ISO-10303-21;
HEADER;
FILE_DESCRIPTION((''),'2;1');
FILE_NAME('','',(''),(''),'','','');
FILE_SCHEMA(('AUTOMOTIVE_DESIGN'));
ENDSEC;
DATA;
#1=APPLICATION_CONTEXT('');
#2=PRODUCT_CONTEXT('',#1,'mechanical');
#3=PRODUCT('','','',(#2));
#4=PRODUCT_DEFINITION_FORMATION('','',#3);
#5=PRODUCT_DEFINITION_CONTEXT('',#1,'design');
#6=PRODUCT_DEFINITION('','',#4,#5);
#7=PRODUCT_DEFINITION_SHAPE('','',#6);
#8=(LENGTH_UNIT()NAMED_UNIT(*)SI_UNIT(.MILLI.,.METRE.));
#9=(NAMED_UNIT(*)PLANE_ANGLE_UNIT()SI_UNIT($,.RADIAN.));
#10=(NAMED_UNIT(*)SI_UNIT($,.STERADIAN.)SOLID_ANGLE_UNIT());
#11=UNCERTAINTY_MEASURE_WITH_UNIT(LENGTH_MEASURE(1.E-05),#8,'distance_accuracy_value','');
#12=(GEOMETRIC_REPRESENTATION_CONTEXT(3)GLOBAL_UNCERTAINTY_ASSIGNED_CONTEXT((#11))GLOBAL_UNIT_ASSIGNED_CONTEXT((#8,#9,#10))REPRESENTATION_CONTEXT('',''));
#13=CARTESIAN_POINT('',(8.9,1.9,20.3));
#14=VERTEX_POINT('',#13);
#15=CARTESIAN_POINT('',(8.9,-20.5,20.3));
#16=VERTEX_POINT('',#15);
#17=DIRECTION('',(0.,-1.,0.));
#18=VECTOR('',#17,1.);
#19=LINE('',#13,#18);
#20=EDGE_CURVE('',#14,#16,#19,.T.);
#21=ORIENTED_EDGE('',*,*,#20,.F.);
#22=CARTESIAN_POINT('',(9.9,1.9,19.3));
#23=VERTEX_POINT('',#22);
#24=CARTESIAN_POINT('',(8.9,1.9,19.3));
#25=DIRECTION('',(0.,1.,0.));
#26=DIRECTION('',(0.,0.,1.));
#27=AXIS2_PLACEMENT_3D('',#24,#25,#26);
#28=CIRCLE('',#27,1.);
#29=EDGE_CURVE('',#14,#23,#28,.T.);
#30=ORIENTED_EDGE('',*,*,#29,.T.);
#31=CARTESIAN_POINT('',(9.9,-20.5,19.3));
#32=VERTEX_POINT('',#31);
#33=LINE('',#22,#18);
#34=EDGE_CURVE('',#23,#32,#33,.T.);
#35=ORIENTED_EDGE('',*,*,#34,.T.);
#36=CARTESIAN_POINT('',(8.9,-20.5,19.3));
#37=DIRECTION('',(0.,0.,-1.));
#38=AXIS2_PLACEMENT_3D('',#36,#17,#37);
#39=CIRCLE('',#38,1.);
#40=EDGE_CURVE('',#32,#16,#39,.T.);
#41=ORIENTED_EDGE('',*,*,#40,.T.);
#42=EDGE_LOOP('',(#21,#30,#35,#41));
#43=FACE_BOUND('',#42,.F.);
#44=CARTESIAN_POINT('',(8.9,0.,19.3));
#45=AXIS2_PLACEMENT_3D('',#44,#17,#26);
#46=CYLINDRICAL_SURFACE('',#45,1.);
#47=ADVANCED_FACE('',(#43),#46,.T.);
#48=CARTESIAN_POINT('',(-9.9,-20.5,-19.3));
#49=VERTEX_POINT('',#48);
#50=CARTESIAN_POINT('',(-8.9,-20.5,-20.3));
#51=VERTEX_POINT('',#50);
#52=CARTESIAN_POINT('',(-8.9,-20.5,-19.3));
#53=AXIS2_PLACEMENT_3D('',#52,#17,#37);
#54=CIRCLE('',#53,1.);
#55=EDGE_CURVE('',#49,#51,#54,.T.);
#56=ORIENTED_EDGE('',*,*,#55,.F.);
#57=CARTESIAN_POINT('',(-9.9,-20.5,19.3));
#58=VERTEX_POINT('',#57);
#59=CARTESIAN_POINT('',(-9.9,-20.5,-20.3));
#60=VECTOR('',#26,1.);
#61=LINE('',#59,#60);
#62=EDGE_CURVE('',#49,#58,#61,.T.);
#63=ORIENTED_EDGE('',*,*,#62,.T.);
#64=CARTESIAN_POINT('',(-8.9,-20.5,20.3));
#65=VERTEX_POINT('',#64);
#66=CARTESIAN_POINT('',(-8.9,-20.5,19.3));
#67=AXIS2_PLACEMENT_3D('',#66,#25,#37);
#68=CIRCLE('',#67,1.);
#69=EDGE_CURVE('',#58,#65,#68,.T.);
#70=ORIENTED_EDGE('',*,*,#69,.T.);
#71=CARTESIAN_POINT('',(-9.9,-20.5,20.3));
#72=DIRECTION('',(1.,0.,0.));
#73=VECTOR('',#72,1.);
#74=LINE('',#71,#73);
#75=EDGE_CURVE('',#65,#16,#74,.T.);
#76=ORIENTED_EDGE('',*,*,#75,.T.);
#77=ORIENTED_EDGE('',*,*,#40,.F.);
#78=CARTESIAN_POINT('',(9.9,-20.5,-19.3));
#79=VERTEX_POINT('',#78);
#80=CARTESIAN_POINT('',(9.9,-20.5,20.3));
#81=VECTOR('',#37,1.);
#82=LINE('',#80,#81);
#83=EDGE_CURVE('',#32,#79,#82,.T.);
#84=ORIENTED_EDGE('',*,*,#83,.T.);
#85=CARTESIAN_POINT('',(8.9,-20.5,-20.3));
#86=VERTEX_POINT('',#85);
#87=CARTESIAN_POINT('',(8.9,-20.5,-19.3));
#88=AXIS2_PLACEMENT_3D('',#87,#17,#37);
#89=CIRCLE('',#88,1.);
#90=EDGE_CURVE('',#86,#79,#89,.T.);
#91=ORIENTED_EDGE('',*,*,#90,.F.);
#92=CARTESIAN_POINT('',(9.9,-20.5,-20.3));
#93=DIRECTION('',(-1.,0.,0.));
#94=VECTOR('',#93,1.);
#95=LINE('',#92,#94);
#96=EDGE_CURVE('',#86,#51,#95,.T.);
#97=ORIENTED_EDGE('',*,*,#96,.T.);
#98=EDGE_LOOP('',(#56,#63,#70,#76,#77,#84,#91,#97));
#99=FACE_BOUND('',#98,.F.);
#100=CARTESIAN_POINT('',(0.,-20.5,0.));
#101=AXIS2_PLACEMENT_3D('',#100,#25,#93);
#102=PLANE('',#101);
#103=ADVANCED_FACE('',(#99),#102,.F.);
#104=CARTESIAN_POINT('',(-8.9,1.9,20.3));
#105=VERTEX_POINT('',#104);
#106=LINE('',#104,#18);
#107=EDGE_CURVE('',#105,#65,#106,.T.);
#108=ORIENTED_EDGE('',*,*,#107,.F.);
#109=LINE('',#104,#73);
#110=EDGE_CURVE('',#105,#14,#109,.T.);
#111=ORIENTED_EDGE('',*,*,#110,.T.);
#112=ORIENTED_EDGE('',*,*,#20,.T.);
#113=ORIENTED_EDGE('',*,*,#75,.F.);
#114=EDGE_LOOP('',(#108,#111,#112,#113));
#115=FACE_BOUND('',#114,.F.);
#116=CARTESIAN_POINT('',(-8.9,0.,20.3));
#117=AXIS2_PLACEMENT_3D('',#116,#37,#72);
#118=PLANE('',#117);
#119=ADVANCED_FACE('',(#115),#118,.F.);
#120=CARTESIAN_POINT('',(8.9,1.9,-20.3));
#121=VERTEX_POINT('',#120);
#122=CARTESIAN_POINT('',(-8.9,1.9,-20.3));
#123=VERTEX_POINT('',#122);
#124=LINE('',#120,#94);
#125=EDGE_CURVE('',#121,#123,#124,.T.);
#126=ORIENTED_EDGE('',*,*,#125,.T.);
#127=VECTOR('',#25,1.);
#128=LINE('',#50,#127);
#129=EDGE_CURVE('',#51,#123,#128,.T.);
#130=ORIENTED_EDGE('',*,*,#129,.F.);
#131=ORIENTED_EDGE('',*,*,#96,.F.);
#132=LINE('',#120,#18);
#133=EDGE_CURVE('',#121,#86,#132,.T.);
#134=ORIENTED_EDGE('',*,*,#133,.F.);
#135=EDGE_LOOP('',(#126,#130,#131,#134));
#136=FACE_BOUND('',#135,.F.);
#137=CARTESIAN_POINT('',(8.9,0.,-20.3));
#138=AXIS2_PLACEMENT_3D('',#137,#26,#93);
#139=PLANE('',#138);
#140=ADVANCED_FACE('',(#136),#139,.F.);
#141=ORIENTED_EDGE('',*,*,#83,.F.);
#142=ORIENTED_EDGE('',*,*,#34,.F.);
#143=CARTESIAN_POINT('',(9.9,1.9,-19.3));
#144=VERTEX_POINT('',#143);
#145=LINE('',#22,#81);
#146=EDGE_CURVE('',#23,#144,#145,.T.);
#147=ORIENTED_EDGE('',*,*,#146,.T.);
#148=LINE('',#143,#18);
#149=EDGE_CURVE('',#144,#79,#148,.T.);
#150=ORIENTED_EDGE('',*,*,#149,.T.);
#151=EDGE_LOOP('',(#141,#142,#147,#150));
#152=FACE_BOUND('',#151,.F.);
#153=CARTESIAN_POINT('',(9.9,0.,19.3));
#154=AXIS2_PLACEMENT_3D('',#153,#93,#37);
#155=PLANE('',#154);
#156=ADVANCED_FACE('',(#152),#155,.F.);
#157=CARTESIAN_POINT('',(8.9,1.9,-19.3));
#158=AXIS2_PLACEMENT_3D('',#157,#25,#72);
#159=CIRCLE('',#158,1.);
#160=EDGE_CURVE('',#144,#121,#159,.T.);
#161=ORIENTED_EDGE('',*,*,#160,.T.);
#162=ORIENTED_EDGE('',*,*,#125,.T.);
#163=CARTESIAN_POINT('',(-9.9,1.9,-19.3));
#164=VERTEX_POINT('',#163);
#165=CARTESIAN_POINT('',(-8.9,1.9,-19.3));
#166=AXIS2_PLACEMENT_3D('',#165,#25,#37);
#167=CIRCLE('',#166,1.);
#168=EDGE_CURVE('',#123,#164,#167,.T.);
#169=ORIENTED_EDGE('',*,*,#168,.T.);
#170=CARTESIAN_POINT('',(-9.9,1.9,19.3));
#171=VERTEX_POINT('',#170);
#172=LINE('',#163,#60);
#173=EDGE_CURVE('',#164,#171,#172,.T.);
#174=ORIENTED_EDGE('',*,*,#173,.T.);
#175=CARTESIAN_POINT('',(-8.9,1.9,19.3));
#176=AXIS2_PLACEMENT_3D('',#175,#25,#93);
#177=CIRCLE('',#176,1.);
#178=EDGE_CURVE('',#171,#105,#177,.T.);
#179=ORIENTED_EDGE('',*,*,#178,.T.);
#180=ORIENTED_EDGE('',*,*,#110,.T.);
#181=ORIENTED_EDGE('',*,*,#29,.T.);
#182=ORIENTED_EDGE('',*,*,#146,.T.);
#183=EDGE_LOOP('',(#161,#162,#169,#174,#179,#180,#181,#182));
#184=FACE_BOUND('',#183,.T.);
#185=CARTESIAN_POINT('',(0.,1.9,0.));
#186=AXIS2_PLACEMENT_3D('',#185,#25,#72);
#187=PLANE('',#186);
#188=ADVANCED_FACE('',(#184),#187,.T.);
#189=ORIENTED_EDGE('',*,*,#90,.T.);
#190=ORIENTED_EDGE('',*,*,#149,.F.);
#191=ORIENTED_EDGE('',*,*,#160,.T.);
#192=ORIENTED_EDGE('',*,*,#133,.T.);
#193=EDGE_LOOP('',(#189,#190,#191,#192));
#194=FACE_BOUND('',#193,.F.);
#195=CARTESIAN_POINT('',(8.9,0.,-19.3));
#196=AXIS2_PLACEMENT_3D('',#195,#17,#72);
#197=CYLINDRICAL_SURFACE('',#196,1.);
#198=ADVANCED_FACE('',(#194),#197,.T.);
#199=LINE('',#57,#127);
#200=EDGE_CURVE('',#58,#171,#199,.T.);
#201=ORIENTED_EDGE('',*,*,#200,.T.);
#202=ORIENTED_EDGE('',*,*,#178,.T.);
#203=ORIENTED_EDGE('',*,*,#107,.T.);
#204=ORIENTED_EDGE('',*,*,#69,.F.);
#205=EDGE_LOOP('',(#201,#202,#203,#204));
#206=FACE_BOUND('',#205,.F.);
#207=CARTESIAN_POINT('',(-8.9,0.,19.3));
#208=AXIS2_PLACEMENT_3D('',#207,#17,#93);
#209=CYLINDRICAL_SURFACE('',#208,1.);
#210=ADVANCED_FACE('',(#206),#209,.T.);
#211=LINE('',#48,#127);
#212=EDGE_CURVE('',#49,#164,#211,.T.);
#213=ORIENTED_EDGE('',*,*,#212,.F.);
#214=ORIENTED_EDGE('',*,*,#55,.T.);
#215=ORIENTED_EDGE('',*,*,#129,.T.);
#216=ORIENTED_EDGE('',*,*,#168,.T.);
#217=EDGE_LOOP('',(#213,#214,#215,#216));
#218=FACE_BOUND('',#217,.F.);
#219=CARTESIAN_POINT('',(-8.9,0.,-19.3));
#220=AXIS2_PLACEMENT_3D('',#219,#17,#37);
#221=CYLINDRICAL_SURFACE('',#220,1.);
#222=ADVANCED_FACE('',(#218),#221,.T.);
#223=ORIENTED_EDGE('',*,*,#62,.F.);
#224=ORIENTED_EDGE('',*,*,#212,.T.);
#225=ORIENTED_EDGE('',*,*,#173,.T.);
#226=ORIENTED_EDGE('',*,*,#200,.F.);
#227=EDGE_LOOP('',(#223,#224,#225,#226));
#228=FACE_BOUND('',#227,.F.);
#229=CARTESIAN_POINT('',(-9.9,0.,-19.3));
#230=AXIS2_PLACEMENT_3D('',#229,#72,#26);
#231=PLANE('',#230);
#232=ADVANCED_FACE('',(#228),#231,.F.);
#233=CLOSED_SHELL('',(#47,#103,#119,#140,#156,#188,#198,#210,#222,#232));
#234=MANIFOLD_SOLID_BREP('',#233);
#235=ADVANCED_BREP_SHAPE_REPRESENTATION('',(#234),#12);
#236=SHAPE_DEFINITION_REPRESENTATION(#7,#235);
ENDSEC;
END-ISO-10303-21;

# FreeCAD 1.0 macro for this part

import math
import FreeCAD as App
import Part
import Sketcher
Q = App.Units.Quantity


def edges_at(feature, points):
    """Names of the edges that pass closest to the given points."""
    edges = feature.Shape.Edges
    near = lambda p: min(range(len(edges)), key=lambda i: edges[i].distToShape(Part.Vertex(*p))[0])
    return sorted({f"Edge{near(p) + 1}" for p in points})

doc = App.newDocument("Part")
body = doc.addObject("PartDesign::Body", "Body")

sketch1 = body.newObject("Sketcher::SketchObject", "Sketch")
sketch1.AttachmentSupport = (doc.getObject("XZ_Plane"), [""])
sketch1.MapMode = "FlatFace"
sketch1.addGeometry(Part.LineSegment(App.Vector(-10, -20, 0), App.Vector(-10, 20, 0)), False)
sketch1.addGeometry(Part.LineSegment(App.Vector(-10, 20, 0), App.Vector(10, 20, 0)), False)
sketch1.addGeometry(Part.LineSegment(App.Vector(10, 20, 0), App.Vector(10, -20, 0)), False)
sketch1.addGeometry(Part.LineSegment(App.Vector(10, -20, 0), App.Vector(-10, -20, 0)), False)
sketch1.addConstraint(Sketcher.Constraint("Coincident", 0, 2, 1, 1))
sketch1.addConstraint(Sketcher.Constraint("Coincident", 1, 2, 2, 1))
sketch1.addConstraint(Sketcher.Constraint("Coincident", 2, 2, 3, 1))
sketch1.addConstraint(Sketcher.Constraint("Coincident", 3, 2, 0, 1))
sketch1.addConstraint(Sketcher.Constraint("Vertical", 0))
sketch1.addConstraint(Sketcher.Constraint("Horizontal", 1))
sketch1.addConstraint(Sketcher.Constraint("Vertical", 2))
sketch1.addConstraint(Sketcher.Constraint("Horizontal", 3))
sketch1.addConstraint(Sketcher.Constraint("Symmetric", 0, 2, 2, 2, -1, 1))
sketch1.addConstraint(Sketcher.Constraint("DistanceX", 1, 1, 1, 2, Q("19.8 mm")))
sketch1.addConstraint(Sketcher.Constraint("DistanceY", 0, 1, 0, 2, Q("40.6 mm")))
pad1 = body.newObject("PartDesign::Pad", "Pad")
pad1.Profile = sketch1
pad1.Length = 20.5
doc.recompute()

fillet = body.newObject("PartDesign::Fillet", "Fillet")
fillet.Base = (pad1, edges_at(pad1, [
    (9.9, -10.25, 20.3),
    (-9.9, -10.25, 20.3),
    (9.9, -10.25, -20.3),
    (-9.9, -10.25, -20.3),
]))
fillet.Radius = 1

sketch2 = body.newObject("Sketcher::SketchObject", "Sketch001")
sketch2.AttachmentSupport = (doc.getObject("XZ_Plane"), [""])
sketch2.MapMode = "FlatFace"
sketch2.addGeometry(Part.LineSegment(App.Vector(8.9, -20.3, 0), App.Vector(-8.9, -20.3, 0)), False)
sketch2.addGeometry(Part.ArcOfCircle(Part.Circle(App.Vector(-8.9, -19.3, 0), App.Vector(0, 0, 1), 1), math.radians(180), math.radians(270)), False)
sketch2.addGeometry(Part.LineSegment(App.Vector(-9.9, -19.3, 0), App.Vector(-9.9, 19.3, 0)), False)
sketch2.addGeometry(Part.ArcOfCircle(Part.Circle(App.Vector(-8.9, 19.3, 0), App.Vector(0, 0, 1), 1), math.radians(90), math.radians(180)), False)
sketch2.addGeometry(Part.LineSegment(App.Vector(-8.9, 20.3, 0), App.Vector(8.9, 20.3, 0)), False)
sketch2.addGeometry(Part.ArcOfCircle(Part.Circle(App.Vector(8.9, 19.3, 0), App.Vector(0, 0, 1), 1), math.radians(0), math.radians(90)), False)
sketch2.addGeometry(Part.LineSegment(App.Vector(9.9, 19.3, 0), App.Vector(9.9, -19.3, 0)), False)
sketch2.addGeometry(Part.ArcOfCircle(Part.Circle(App.Vector(8.9, -19.3, 0), App.Vector(0, 0, 1), 1), math.radians(-90), math.radians(0)), False)
sketch2.addConstraint(Sketcher.Constraint("Tangent", 0, 2, 1, 2))
sketch2.addConstraint(Sketcher.Constraint("Tangent", 1, 1, 2, 1))
sketch2.addConstraint(Sketcher.Constraint("Tangent", 2, 2, 3, 2))
sketch2.addConstraint(Sketcher.Constraint("Tangent", 3, 1, 4, 1))
sketch2.addConstraint(Sketcher.Constraint("Tangent", 4, 2, 5, 2))
sketch2.addConstraint(Sketcher.Constraint("Tangent", 5, 1, 6, 1))
sketch2.addConstraint(Sketcher.Constraint("Tangent", 6, 2, 7, 2))
sketch2.addConstraint(Sketcher.Constraint("Tangent", 7, 1, 0, 1))
sketch2.addConstraint(Sketcher.Constraint("Horizontal", 0))
sketch2.addConstraint(Sketcher.Constraint("Vertical", 2))
sketch2.addConstraint(Sketcher.Constraint("Horizontal", 4))
sketch2.addConstraint(Sketcher.Constraint("Vertical", 6))
sketch2.addConstraint(Sketcher.Constraint("Equal", 1, 3))
sketch2.addConstraint(Sketcher.Constraint("Equal", 3, 5))
sketch2.addConstraint(Sketcher.Constraint("Equal", 5, 7))
sketch2.addConstraint(Sketcher.Constraint("Symmetric", 1, 3, 5, 3, -1, 1))
sketch2.addConstraint(Sketcher.Constraint("Radius", 1, Q("1 mm")))
sketch2.addConstraint(Sketcher.Constraint("DistanceX", 0, 2, 0, 1, Q("17.8 mm")))
sketch2.addConstraint(Sketcher.Constraint("DistanceY", 2, 1, 2, 2, Q("38.6 mm")))
pad2 = body.newObject("PartDesign::Pad", "Pad001")
pad2.Profile = sketch2
pad2.Length = 1.9
pad2.Reversed = True

doc.recompute()
